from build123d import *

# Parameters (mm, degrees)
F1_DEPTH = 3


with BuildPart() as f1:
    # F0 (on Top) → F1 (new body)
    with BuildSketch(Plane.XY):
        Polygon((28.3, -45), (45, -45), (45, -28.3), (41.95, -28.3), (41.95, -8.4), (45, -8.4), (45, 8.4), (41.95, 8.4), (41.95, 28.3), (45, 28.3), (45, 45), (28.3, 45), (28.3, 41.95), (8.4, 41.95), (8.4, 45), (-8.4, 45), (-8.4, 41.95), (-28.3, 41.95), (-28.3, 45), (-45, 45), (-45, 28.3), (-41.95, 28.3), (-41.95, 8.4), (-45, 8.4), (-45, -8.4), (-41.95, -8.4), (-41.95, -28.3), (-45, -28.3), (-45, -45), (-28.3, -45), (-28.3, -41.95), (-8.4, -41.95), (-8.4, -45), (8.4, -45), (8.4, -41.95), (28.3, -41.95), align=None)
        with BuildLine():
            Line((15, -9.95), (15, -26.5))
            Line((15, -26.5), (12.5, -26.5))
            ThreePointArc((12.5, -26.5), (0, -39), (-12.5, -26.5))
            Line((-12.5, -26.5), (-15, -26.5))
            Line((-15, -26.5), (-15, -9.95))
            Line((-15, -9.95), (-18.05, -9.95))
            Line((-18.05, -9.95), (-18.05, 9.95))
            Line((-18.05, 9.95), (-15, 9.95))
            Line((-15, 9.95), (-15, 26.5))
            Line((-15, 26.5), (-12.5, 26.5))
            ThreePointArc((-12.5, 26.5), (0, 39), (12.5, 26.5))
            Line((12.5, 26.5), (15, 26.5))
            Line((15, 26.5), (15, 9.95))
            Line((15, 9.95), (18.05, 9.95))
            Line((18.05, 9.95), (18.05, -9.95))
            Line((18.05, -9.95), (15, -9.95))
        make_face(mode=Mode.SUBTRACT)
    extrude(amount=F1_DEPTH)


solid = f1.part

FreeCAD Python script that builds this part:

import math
import FreeCAD as App
import Part
import Sketcher
from FreeCAD import Vector
Q = App.Units.Quantity

doc = App.newDocument("Part")
body = doc.addObject("PartDesign::Body", "Body")

sketch1 = body.newObject("Sketcher::SketchObject", "Sketch")
sketch1.AttachmentSupport = (doc.getObject("XY_Plane"), [""])
sketch1.MapMode = "FlatFace"
sketch1.addGeometry([
    Part.LineSegment(Vector(28.3, -45, 0), Vector(45, -45, 0)),
    Part.LineSegment(Vector(45, -45, 0), Vector(45, -28.3, 0)),
    Part.LineSegment(Vector(45, -28.3, 0), Vector(42, -28.3, 0)),
    Part.LineSegment(Vector(42, -28.3, 0), Vector(42, -8.4, 0)),
    Part.LineSegment(Vector(42, -8.4, 0), Vector(45, -8.4, 0)),
    Part.LineSegment(Vector(45, -8.4, 0), Vector(45, 8.4, 0)),
    Part.LineSegment(Vector(45, 8.4, 0), Vector(42, 8.4, 0)),
    Part.LineSegment(Vector(42, 8.4, 0), Vector(42, 28.3, 0)),
    Part.LineSegment(Vector(42, 28.3, 0), Vector(45, 28.3, 0)),
    Part.LineSegment(Vector(45, 28.3, 0), Vector(45, 45, 0)),
    Part.LineSegment(Vector(45, 45, 0), Vector(28.3, 45, 0)),
    Part.LineSegment(Vector(28.3, 45, 0), Vector(28.3, 42, 0)),
    Part.LineSegment(Vector(28.3, 42, 0), Vector(8.4, 42, 0)),
    Part.LineSegment(Vector(8.4, 42, 0), Vector(8.4, 45, 0)),
    Part.LineSegment(Vector(8.4, 45, 0), Vector(-8.4, 45, 0)),
    Part.LineSegment(Vector(-8.4, 45, 0), Vector(-8.4, 42, 0)),
    Part.LineSegment(Vector(-8.4, 42, 0), Vector(-28.3, 42, 0)),
    Part.LineSegment(Vector(-28.3, 42, 0), Vector(-28.3, 45, 0)),
    Part.LineSegment(Vector(-28.3, 45, 0), Vector(-45, 45, 0)),
    Part.LineSegment(Vector(-45, 45, 0), Vector(-45, 28.3, 0)),
    Part.LineSegment(Vector(-45, 28.3, 0), Vector(-42, 28.3, 0)),
    Part.LineSegment(Vector(-42, 28.3, 0), Vector(-42, 8.4, 0)),
    Part.LineSegment(Vector(-42, 8.4, 0), Vector(-45, 8.4, 0)),
    Part.LineSegment(Vector(-45, 8.4, 0), Vector(-45, -8.4, 0)),
    Part.LineSegment(Vector(-45, -8.4, 0), Vector(-42, -8.4, 0)),
    Part.LineSegment(Vector(-42, -8.4, 0), Vector(-42, -28.3, 0)),
    Part.LineSegment(Vector(-42, -28.3, 0), Vector(-45, -28.3, 0)),
    Part.LineSegment(Vector(-45, -28.3, 0), Vector(-45, -45, 0)),
    Part.LineSegment(Vector(-45, -45, 0), Vector(-28.3, -45, 0)),
    Part.LineSegment(Vector(-28.3, -45, 0), Vector(-28.3, -42, 0)),
    Part.LineSegment(Vector(-28.3, -42, 0), Vector(-8.4, -42, 0)),
    Part.LineSegment(Vector(-8.4, -42, 0), Vector(-8.4, -45, 0)),
    Part.LineSegment(Vector(-8.4, -45, 0), Vector(8.4, -45, 0)),
    Part.LineSegment(Vector(8.4, -45, 0), Vector(8.4, -42, 0)),
    Part.LineSegment(Vector(8.4, -42, 0), Vector(28.3, -42, 0)),
    Part.LineSegment(Vector(28.3, -42, 0), Vector(28.3, -45, 0)),
    Part.LineSegment(Vector(18.1, -9.9, 0), Vector(15, -9.9, 0)),
    Part.LineSegment(Vector(15, -9.9, 0), Vector(15, -26.5, 0)),
    Part.LineSegment(Vector(15, -26.5, 0), Vector(12.5, -26.5, 0)),
    Part.ArcOfCircle(Part.Circle(Vector(0, -26.5, 0), Vector(0, 0, 1), 12.5), math.radians(180), math.radians(360)),
    Part.LineSegment(Vector(-12.5, -26.5, 0), Vector(-15, -26.5, 0)),
    Part.LineSegment(Vector(-15, -26.5, 0), Vector(-15, -9.9, 0)),
    Part.LineSegment(Vector(-15, -9.9, 0), Vector(-18.1, -9.9, 0)),
    Part.LineSegment(Vector(-18.1, -9.9, 0), Vector(-18.1, 9.9, 0)),
    Part.LineSegment(Vector(-18.1, 9.9, 0), Vector(-15, 9.9, 0)),
    Part.LineSegment(Vector(-15, 9.9, 0), Vector(-15, 26.5, 0)),
    Part.LineSegment(Vector(-15, 26.5, 0), Vector(-12.5, 26.5, 0)),
    Part.ArcOfCircle(Part.Circle(Vector(0, 26.5, 0), Vector(0, 0, 1), 12.5), math.radians(0), math.radians(180)),
    Part.LineSegment(Vector(12.5, 26.5, 0), Vector(15, 26.5, 0)),
    Part.LineSegment(Vector(15, 26.5, 0), Vector(15, 9.9, 0)),
    Part.LineSegment(Vector(15, 9.9, 0), Vector(18.1, 9.9, 0)),
    Part.LineSegment(Vector(18.1, 9.9, 0), Vector(18.1, -9.9, 0)),
], False)
sketch1.addConstraint([
    Sketcher.Constraint("Coincident", 0, 2, 1, 1),
    Sketcher.Constraint("Coincident", 1, 2, 2, 1),
    Sketcher.Constraint("Coincident", 2, 2, 3, 1),
    Sketcher.Constraint("Coincident", 3, 2, 4, 1),
    Sketcher.Constraint("Coincident", 4, 2, 5, 1),
    Sketcher.Constraint("Coincident", 5, 2, 6, 1),
    Sketcher.Constraint("Coincident", 6, 2, 7, 1),
    Sketcher.Constraint("Coincident", 7, 2, 8, 1),
    Sketcher.Constraint("Coincident", 8, 2, 9, 1),
    Sketcher.Constraint("Coincident", 9, 2, 10, 1),
    Sketcher.Constraint("Coincident", 10, 2, 11, 1),
    Sketcher.Constraint("Coincident", 11, 2, 12, 1),
    Sketcher.Constraint("Coincident", 12, 2, 13, 1),
    Sketcher.Constraint("Coincident", 13, 2, 14, 1),
    Sketcher.Constraint("Coincident", 14, 2, 15, 1),
    Sketcher.Constraint("Coincident", 15, 2, 16, 1),
    Sketcher.Constraint("Coincident", 16, 2, 17, 1),
    Sketcher.Constraint("Coincident", 17, 2, 18, 1),
    Sketcher.Constraint("Coincident", 18, 2, 19, 1),
    Sketcher.Constraint("Coincident", 19, 2, 20, 1),
    Sketcher.Constraint("Coincident", 20, 2, 21, 1),
    Sketcher.Constraint("Coincident", 21, 2, 22, 1),
    Sketcher.Constraint("Coincident", 22, 2, 23, 1),
    Sketcher.Constraint("Coincident", 23, 2, 24, 1),
    Sketcher.Constraint("Coincident", 24, 2, 25, 1),
    Sketcher.Constraint("Coincident", 25, 2, 26, 1),
    Sketcher.Constraint("Coincident", 26, 2, 27, 1),
    Sketcher.Constraint("Coincident", 27, 2, 28, 1),
    Sketcher.Constraint("Coincident", 28, 2, 29, 1),
    Sketcher.Constraint("Coincident", 29, 2, 30, 1),
    Sketcher.Constraint("Coincident", 30, 2, 31, 1),
    Sketcher.Constraint("Coincident", 31, 2, 32, 1),
    Sketcher.Constraint("Coincident", 32, 2, 33, 1),
    Sketcher.Constraint("Coincident", 33, 2, 34, 1),
    Sketcher.Constraint("Coincident", 34, 2, 35, 1),
    Sketcher.Constraint("Coincident", 35, 2, 0, 1),
    Sketcher.Constraint("Coincident", 36, 2, 37, 1),
    Sketcher.Constraint("Coincident", 37, 2, 38, 1),
    Sketcher.Constraint("Coincident", 38, 2, 39, 2),
    Sketcher.Constraint("Coincident", 39, 1, 40, 1),
    Sketcher.Constraint("Coincident", 40, 2, 41, 1),
    Sketcher.Constraint("Coincident", 41, 2, 42, 1),
    Sketcher.Constraint("Coincident", 42, 2, 43, 1),
    Sketcher.Constraint("Coincident", 43, 2, 44, 1),
    Sketcher.Constraint("Coincident", 44, 2, 45, 1),
    Sketcher.Constraint("Coincident", 45, 2, 46, 1),
    Sketcher.Constraint("Coincident", 46, 2, 47, 2),
    Sketcher.Constraint("Coincident", 47, 1, 48, 1),
    Sketcher.Constraint("Coincident", 48, 2, 49, 1),
    Sketcher.Constraint("Coincident", 49, 2, 50, 1),
    Sketcher.Constraint("Coincident", 50, 2, 51, 1),
    Sketcher.Constraint("Coincident", 51, 2, 36, 1),
    Sketcher.Constraint("Horizontal", 0),
    Sketcher.Constraint("Vertical", 1),
    Sketcher.Constraint("Horizontal", 2),
    Sketcher.Constraint("Vertical", 3),
    Sketcher.Constraint("Horizontal", 4),
    Sketcher.Constraint("Vertical", 5),
    Sketcher.Constraint("Horizontal", 6),
    Sketcher.Constraint("Vertical", 7),
    Sketcher.Constraint("Horizontal", 8),
    Sketcher.Constraint("Vertical", 9),
    Sketcher.Constraint("Horizontal", 10),
    Sketcher.Constraint("Vertical", 11),
    Sketcher.Constraint("Horizontal", 12),
    Sketcher.Constraint("Vertical", 13),
    Sketcher.Constraint("Horizontal", 14),
    Sketcher.Constraint("Vertical", 15),
    Sketcher.Constraint("Horizontal", 16),
    Sketcher.Constraint("Vertical", 17),
    Sketcher.Constraint("Horizontal", 18),
    Sketcher.Constraint("Vertical", 19),
    Sketcher.Constraint("Horizontal", 20),
    Sketcher.Constraint("Vertical", 21),
    Sketcher.Constraint("Horizontal", 22),
    Sketcher.Constraint("Vertical", 23),
    Sketcher.Constraint("Horizontal", 24),
    Sketcher.Constraint("Vertical", 25),
    Sketcher.Constraint("Horizontal", 26),
    Sketcher.Constraint("Vertical", 27),
    Sketcher.Constraint("Horizontal", 28),
    Sketcher.Constraint("Vertical", 29),
    Sketcher.Constraint("Horizontal", 30),
    Sketcher.Constraint("Vertical", 31),
    Sketcher.Constraint("Horizontal", 32),
    Sketcher.Constraint("Vertical", 33),
    Sketcher.Constraint("Horizontal", 34),
    Sketcher.Constraint("Vertical", 35),
    Sketcher.Constraint("Horizontal", 36),
    Sketcher.Constraint("Vertical", 37),
    Sketcher.Constraint("Horizontal", 38),
    Sketcher.Constraint("Horizontal", 40),
    Sketcher.Constraint("Vertical", 41),
    Sketcher.Constraint("Horizontal", 42),
    Sketcher.Constraint("Vertical", 43),
    Sketcher.Constraint("Horizontal", 44),
    Sketcher.Constraint("Vertical", 45),
    Sketcher.Constraint("Horizontal", 46),
    Sketcher.Constraint("Horizontal", 48),
    Sketcher.Constraint("Vertical", 49),
    Sketcher.Constraint("Horizontal", 50),
    Sketcher.Constraint("Vertical", 51),
    Sketcher.Constraint("Equal", 39, 47),
    Sketcher.Constraint("Symmetric", 39, 3, 47, 3, -1, 1),
    Sketcher.Constraint("Symmetric", 0, 2, 18, 2, -1, 1),
    Sketcher.Constraint("Symmetric", 2, 2, 20, 2, -1, 1),
    Sketcher.Constraint("Symmetric", 4, 2, 22, 2, -1, 1),
    Sketcher.Constraint("Symmetric", 6, 2, 24, 2, -1, 1),
    Sketcher.Constraint("Symmetric", 8, 2, 26, 2, -1, 1),
    Sketcher.Constraint("Symmetric", 10, 2, 28, 2, -1, 1),
    Sketcher.Constraint("Symmetric", 12, 2, 30, 2, -1, 1),
    Sketcher.Constraint("Symmetric", 14, 2, 32, 2, -1, 1),
    Sketcher.Constraint("Symmetric", 16, 2, 34, 2, -1, 1),
    Sketcher.Constraint("Symmetric", 36, 2, 44, 2, -1, 1),
    Sketcher.Constraint("Symmetric", 40, 2, 48, 2, -1, 1),
    Sketcher.Constraint("Symmetric", 42, 2, 50, 2, -1, 1),
    Sketcher.Constraint("Symmetric", 12, 2, 15, 2, -2),
    Sketcher.Constraint("Symmetric", 10, 2, 17, 2, -2),
    Sketcher.Constraint("Symmetric", 8, 2, 19, 2, -2),
    Sketcher.Constraint("Symmetric", 6, 2, 21, 2, -2),
    Sketcher.Constraint("Symmetric", 38, 2, 39, 1, -2),
    Sketcher.Constraint("Symmetric", 36, 2, 41, 2, -2),
    Sketcher.Constraint("Horizontal", 10, 2, 13, 2),
    Sketcher.Constraint("Horizontal", 39, 3, 37, 2),
    Sketcher.Constraint("Horizontal", 47, 3, 45, 2),
    Sketcher.Constraint("Vertical", 1, 2, 4, 2),
    Sketcher.Constraint("Equal", 26, 36),
    Sketcher.Constraint("Equal", 28, 1),
    Sketcher.Constraint("Equal", 34, 3),
    Sketcher.Constraint("Equal", 32, 5),
    Sketcher.Constraint("Equal", 50, 11),
    Sketcher.Constraint("Equal", 25, 43),
    Sketcher.Constraint("Radius", 39, Q("12.5 mm")),
    Sketcher.Constraint("DistanceX", 0, 1, 0, 2, Q("16.7 mm")),
    Sketcher.Constraint("DistanceX", 12, 2, 12, 1, Q("19.9 mm")),
    Sketcher.Constraint("DistanceX", 14, 2, 14, 1, Q("16.8 mm")),
    Sketcher.Constraint("DistanceX", 38, 2, 38, 1, Q("2.5 mm")),
    Sketcher.Constraint("DistanceY", 39, 3, 47, 3, Q("53 mm")),
    Sketcher.Constraint("DistanceX", 2, 2, 2, 1, Q("3.05 mm")),
])
pad1 = body.newObject("PartDesign::Pad", "Pad")
pad1.Profile = sketch1
pad1.Length = 3

doc.recompute()
